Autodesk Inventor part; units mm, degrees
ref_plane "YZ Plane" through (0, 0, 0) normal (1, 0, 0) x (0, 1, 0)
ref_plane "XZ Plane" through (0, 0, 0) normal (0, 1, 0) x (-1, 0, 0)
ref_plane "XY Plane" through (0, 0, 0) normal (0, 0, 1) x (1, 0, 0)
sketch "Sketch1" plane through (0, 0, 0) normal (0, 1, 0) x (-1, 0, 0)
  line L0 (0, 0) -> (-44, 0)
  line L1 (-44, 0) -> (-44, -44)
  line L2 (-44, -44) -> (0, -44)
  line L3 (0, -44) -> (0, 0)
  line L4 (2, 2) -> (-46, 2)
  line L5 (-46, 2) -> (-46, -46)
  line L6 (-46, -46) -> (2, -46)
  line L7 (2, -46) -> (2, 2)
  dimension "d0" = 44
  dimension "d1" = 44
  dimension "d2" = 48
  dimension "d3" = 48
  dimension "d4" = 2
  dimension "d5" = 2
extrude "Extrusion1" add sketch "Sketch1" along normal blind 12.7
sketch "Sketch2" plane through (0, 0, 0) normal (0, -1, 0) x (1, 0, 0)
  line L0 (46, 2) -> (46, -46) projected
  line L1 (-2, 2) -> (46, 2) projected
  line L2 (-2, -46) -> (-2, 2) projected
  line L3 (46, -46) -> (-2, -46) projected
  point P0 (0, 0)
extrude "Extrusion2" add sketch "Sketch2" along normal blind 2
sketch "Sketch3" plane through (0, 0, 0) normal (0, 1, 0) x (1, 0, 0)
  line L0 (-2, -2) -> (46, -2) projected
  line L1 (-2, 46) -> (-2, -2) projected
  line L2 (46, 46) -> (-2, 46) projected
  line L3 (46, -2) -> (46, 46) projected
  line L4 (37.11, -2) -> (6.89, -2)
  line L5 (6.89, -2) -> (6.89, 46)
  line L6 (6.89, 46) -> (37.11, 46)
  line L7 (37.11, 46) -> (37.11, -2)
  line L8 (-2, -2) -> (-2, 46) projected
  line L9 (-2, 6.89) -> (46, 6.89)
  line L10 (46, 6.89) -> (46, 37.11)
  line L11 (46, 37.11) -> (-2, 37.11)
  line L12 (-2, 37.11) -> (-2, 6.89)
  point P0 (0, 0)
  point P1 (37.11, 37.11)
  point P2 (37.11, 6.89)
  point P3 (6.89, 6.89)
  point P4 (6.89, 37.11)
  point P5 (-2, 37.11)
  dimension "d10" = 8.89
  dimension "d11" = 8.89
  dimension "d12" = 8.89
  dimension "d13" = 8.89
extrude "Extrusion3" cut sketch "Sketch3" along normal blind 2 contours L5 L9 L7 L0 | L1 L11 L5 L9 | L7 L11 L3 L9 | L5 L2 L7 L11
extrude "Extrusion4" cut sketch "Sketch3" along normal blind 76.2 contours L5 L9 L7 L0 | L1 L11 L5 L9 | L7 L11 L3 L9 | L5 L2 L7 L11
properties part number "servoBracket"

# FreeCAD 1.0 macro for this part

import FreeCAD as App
import Part
import Sketcher
Q = App.Units.Quantity


def add_polygon(sketch, points):
    """Adds a closed chain of lines whose ends are joined by coincident constraints."""
    first, n = sketch.GeometryCount, len(points)
    for a, b in zip(points, points[1:] + points[:1]):
        sketch.addGeometry(Part.LineSegment(App.Vector(*a, 0), App.Vector(*b, 0)), False)
    for i in range(n):
        sketch.addConstraint(Sketcher.Constraint("Coincident", first + i, 2, first + (i + 1) % n, 1))

doc = App.newDocument("Part")
body = doc.addObject("PartDesign::Body", "Body")

# Sketch on XZ plane
sketch1 = body.newObject("Sketcher::SketchObject", "Sketch")
sketch1.AttachmentSupport = (doc.getObject("XZ_Plane"), [""])
sketch1.MapMode = "FlatFace"
add_polygon(sketch1, [(-2, -46), (-2, 2), (46, 2), (46, -46)])  # lines 0-3
add_polygon(sketch1, [(44, 0), (0, 0), (0, -44), (44, -44)])  # lines 4-7
sketch1.addConstraint(Sketcher.Constraint("Vertical", 0))
sketch1.addConstraint(Sketcher.Constraint("Horizontal", 1))
sketch1.addConstraint(Sketcher.Constraint("Vertical", 2))
sketch1.addConstraint(Sketcher.Constraint("Horizontal", 3))
sketch1.addConstraint(Sketcher.Constraint("Horizontal", 4))
sketch1.addConstraint(Sketcher.Constraint("Vertical", 5))
sketch1.addConstraint(Sketcher.Constraint("Horizontal", 6))
sketch1.addConstraint(Sketcher.Constraint("Vertical", 7))
sketch1.addConstraint(Sketcher.Constraint("Coincident", 4, 2, -1, 1))
sketch1.addConstraint(Sketcher.Constraint("Equal", 3, 0))
sketch1.addConstraint(Sketcher.Constraint("Equal", 6, 5))
sketch1.addConstraint(Sketcher.Constraint("DistanceX", 1, 1, 1, 2, Q("48 mm")))
sketch1.addConstraint(Sketcher.Constraint("DistanceX", 4, 2, 4, 1, Q("44 mm")))
sketch1.addConstraint(Sketcher.Constraint("DistanceX", 0, 2, -1, 1, Q("2 mm")))
sketch1.addConstraint(Sketcher.Constraint("DistanceY", -1, 1, 0, 2, Q("2 mm")))
pad1 = body.newObject("PartDesign::Pad", "Pad")
pad1.Profile = sketch1
pad1.Length = 12.7
pad1.Reversed = True

# Sketch on XZ plane
sketch2 = body.newObject("Sketcher::SketchObject", "Sketch001")
sketch2.AttachmentSupport = (doc.getObject("XZ_Plane"), [""])
sketch2.MapMode = "FlatFace"
add_polygon(sketch2, [(46, -46), (46, 2), (-2, 2), (-2, -46)])  # lines 0-3
sketch2.addConstraint(Sketcher.Constraint("Vertical", 0))
sketch2.addConstraint(Sketcher.Constraint("Horizontal", 1))
sketch2.addConstraint(Sketcher.Constraint("Vertical", 2))
sketch2.addConstraint(Sketcher.Constraint("Horizontal", 3))
sketch2.addConstraint(Sketcher.Constraint("Equal", 3, 0))
sketch2.addConstraint(Sketcher.Constraint("DistanceX", 1, 2, 1, 1, Q("48 mm")))
sketch2.addConstraint(Sketcher.Constraint("DistanceX", -1, 1, 0, 2, Q("46 mm")))
sketch2.addConstraint(Sketcher.Constraint("DistanceY", -1, 1, 0, 2, Q("2 mm")))
pad2 = body.newObject("PartDesign::Pad", "Pad001")
pad2.Profile = sketch2
pad2.Length = 2

# Sketch on XZ plane
sketch3 = body.newObject("Sketcher::SketchObject", "Sketch002")
sketch3.AttachmentSupport = (doc.getObject("XZ_Plane"), [""])
sketch3.MapMode = "FlatFace"
add_polygon(sketch3, [(7, -7), (7, 2), (37, 2), (37, -7)])  # lines 0-3
add_polygon(sketch3, [(-2, -37), (-2, -7), (7, -7), (7, -37)])  # lines 4-7
add_polygon(sketch3, [(37, -37), (37, -7), (46, -7), (46, -37)])  # lines 8-11
add_polygon(sketch3, [(7, -46), (7, -37), (37, -37), (37, -46)])  # lines 12-15
sketch3.addConstraint(Sketcher.Constraint("Vertical", 0))
sketch3.addConstraint(Sketcher.Constraint("Horizontal", 1))
sketch3.addConstraint(Sketcher.Constraint("Vertical", 2))
sketch3.addConstraint(Sketcher.Constraint("Horizontal", 3))
sketch3.addConstraint(Sketcher.Constraint("Vertical", 4))
sketch3.addConstraint(Sketcher.Constraint("Horizontal", 5))
sketch3.addConstraint(Sketcher.Constraint("Vertical", 6))
sketch3.addConstraint(Sketcher.Constraint("Horizontal", 7))
sketch3.addConstraint(Sketcher.Constraint("Vertical", 8))
sketch3.addConstraint(Sketcher.Constraint("Horizontal", 9))
sketch3.addConstraint(Sketcher.Constraint("Vertical", 10))
sketch3.addConstraint(Sketcher.Constraint("Horizontal", 11))
sketch3.addConstraint(Sketcher.Constraint("Vertical", 12))
sketch3.addConstraint(Sketcher.Constraint("Horizontal", 13))
sketch3.addConstraint(Sketcher.Constraint("Vertical", 14))
sketch3.addConstraint(Sketcher.Constraint("Horizontal", 15))
sketch3.addConstraint(Sketcher.Constraint("Coincident", 5, 2, 3, 2))
sketch3.addConstraint(Sketcher.Constraint("Coincident", 8, 2, 2, 2))
sketch3.addConstraint(Sketcher.Constraint("Coincident", 12, 2, 6, 2))
sketch3.addConstraint(Sketcher.Constraint("Coincident", 13, 2, 11, 2))
sketch3.addConstraint(Sketcher.Constraint("Equal", 7, 9))
sketch3.addConstraint(Sketcher.Constraint("Equal", 11, 0))
sketch3.addConstraint(Sketcher.Constraint("Equal", 15, 4))
sketch3.addConstraint(Sketcher.Constraint("Equal", 2, 12))
sketch3.addConstraint(Sketcher.Constraint("DistanceX", 5, 1, 5, 2, Q("8.89 mm")))
sketch3.addConstraint(Sketcher.Constraint("DistanceY", -1, 1, 0, 2, Q("2 mm")))
sketch3.addConstraint(Sketcher.Constraint("DistanceX", 4, 2, -1, 1, Q("2 mm")))
sketch3.addConstraint(Sketcher.Constraint("DistanceX", -1, 1, 9, 2, Q("46 mm")))
pocket1 = body.newObject("PartDesign::Pocket", "Pocket")
pocket1.Profile = sketch3
pocket1.Length = 2

# Sketch on XZ plane
sketch4 = body.newObject("Sketcher::SketchObject", "Sketch003")
sketch4.AttachmentSupport = (doc.getObject("XZ_Plane"), [""])
sketch4.MapMode = "FlatFace"
add_polygon(sketch4, [(7, -7), (7, 2), (37, 2), (37, -7)])  # lines 0-3
add_polygon(sketch4, [(-2, -37), (-2, -7), (7, -7), (7, -37)])  # lines 4-7
add_polygon(sketch4, [(37, -37), (37, -7), (46, -7), (46, -37)])  # lines 8-11
add_polygon(sketch4, [(7, -46), (7, -37), (37, -37), (37, -46)])  # lines 12-15
sketch4.addConstraint(Sketcher.Constraint("Vertical", 0))
sketch4.addConstraint(Sketcher.Constraint("Horizontal", 1))
sketch4.addConstraint(Sketcher.Constraint("Vertical", 2))
sketch4.addConstraint(Sketcher.Constraint("Horizontal", 3))
sketch4.addConstraint(Sketcher.Constraint("Vertical", 4))
sketch4.addConstraint(Sketcher.Constraint("Horizontal", 5))
sketch4.addConstraint(Sketcher.Constraint("Vertical", 6))
sketch4.addConstraint(Sketcher.Constraint("Horizontal", 7))
sketch4.addConstraint(Sketcher.Constraint("Vertical", 8))
sketch4.addConstraint(Sketcher.Constraint("Horizontal", 9))
sketch4.addConstraint(Sketcher.Constraint("Vertical", 10))
sketch4.addConstraint(Sketcher.Constraint("Horizontal", 11))
sketch4.addConstraint(Sketcher.Constraint("Vertical", 12))
sketch4.addConstraint(Sketcher.Constraint("Horizontal", 13))
sketch4.addConstraint(Sketcher.Constraint("Vertical", 14))
sketch4.addConstraint(Sketcher.Constraint("Horizontal", 15))
sketch4.addConstraint(Sketcher.Constraint("Coincident", 5, 2, 3, 2))
sketch4.addConstraint(Sketcher.Constraint("Coincident", 8, 2, 2, 2))
sketch4.addConstraint(Sketcher.Constraint("Coincident", 12, 2, 6, 2))
sketch4.addConstraint(Sketcher.Constraint("Coincident", 13, 2, 11, 2))
sketch4.addConstraint(Sketcher.Constraint("Equal", 7, 9))
sketch4.addConstraint(Sketcher.Constraint("Equal", 11, 0))
sketch4.addConstraint(Sketcher.Constraint("Equal", 15, 4))
sketch4.addConstraint(Sketcher.Constraint("Equal", 2, 12))
sketch4.addConstraint(Sketcher.Constraint("DistanceX", 5, 1, 5, 2, Q("8.89 mm")))
sketch4.addConstraint(Sketcher.Constraint("DistanceY", -1, 1, 0, 2, Q("2 mm")))
sketch4.addConstraint(Sketcher.Constraint("DistanceX", 4, 2, -1, 1, Q("2 mm")))
sketch4.addConstraint(Sketcher.Constraint("DistanceX", -1, 1, 9, 2, Q("46 mm")))
pocket2 = body.newObject("PartDesign::Pocket", "Pocket001")
pocket2.Profile = sketch4
pocket2.Length = 76.2

doc.recompute()
